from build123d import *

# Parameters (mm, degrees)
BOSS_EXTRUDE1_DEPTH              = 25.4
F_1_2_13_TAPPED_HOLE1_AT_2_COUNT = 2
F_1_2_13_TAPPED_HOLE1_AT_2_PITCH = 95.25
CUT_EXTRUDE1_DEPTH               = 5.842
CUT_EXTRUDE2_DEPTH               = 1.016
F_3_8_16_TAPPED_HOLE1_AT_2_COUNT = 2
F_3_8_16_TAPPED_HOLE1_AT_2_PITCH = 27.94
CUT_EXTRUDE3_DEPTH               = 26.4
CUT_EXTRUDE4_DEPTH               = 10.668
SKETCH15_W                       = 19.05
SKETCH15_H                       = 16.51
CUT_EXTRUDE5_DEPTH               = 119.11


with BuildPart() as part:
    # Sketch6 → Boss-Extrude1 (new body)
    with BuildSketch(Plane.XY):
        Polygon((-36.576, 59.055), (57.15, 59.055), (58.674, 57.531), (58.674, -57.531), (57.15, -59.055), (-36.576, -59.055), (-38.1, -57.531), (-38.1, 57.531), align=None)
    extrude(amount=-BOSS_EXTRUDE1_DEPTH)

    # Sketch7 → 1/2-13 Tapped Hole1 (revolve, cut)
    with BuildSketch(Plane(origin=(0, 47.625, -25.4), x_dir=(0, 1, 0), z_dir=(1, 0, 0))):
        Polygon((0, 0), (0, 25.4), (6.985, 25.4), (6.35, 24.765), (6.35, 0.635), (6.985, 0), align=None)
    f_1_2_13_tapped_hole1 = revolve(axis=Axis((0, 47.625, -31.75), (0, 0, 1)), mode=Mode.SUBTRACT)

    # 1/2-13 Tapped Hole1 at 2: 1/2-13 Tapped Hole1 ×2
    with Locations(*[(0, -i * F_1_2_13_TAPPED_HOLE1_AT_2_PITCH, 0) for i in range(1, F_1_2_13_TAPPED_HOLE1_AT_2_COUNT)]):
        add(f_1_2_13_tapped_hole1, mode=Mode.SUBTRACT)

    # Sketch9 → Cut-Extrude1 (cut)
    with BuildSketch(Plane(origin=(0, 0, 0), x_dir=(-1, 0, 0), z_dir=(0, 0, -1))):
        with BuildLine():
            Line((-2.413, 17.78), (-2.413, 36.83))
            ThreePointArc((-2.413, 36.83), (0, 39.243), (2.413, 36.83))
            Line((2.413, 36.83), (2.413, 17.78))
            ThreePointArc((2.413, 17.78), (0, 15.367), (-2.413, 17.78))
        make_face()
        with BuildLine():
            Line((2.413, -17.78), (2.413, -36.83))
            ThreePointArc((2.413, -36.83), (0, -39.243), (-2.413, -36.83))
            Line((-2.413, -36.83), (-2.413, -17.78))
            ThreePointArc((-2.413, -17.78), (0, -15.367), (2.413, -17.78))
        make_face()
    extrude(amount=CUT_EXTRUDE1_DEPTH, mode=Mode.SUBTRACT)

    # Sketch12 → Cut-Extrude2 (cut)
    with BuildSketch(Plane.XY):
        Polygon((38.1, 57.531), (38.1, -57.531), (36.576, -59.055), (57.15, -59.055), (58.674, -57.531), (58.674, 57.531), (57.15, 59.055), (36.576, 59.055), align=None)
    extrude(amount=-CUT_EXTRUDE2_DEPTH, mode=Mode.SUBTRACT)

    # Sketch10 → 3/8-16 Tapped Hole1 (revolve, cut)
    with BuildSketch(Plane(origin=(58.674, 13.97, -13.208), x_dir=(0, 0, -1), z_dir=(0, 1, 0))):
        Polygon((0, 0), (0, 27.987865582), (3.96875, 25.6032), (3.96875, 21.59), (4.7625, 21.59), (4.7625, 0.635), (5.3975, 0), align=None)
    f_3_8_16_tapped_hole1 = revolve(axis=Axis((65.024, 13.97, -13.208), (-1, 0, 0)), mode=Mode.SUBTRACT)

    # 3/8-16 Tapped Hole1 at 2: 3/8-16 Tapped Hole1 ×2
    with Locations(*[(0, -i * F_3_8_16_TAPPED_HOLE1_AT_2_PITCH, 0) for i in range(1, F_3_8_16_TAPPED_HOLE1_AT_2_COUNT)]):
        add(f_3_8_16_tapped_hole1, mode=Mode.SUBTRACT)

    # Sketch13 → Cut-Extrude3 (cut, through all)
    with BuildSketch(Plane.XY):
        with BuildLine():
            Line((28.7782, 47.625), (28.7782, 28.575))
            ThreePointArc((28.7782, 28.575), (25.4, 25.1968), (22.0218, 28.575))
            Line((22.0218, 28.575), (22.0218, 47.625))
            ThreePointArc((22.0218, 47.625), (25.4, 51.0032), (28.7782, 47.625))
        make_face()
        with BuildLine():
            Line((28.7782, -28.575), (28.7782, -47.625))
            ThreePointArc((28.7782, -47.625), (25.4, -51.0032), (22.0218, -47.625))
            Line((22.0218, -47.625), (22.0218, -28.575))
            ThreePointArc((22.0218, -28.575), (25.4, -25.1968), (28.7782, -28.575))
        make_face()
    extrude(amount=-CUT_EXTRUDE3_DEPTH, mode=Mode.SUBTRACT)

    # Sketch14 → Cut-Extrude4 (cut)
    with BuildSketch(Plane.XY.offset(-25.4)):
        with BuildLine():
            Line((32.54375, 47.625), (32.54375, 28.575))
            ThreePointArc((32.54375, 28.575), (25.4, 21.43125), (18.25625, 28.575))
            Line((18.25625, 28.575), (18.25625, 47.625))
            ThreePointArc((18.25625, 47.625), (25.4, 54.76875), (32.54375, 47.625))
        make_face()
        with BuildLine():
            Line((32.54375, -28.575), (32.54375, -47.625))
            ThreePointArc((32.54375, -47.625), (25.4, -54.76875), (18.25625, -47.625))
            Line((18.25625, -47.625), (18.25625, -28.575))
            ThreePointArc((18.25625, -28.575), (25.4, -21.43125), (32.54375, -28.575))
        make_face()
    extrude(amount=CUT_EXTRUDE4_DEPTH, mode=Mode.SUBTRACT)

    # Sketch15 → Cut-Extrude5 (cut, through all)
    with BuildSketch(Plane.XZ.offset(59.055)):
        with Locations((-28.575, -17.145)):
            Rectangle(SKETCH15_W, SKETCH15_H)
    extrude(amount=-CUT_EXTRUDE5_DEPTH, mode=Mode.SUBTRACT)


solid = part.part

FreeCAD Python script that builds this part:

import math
import FreeCAD as App
import Part
import Sketcher

V = App.Vector
Q = App.Units.Quantity


def add_polygon(sketch, points):
    """Adds a closed chain of lines whose ends are joined by coincident constraints."""
    first, n = sketch.GeometryCount, len(points)
    for a, b in zip(points, points[1:] + points[:1]):
        sketch.addGeometry(Part.LineSegment(App.Vector(*a, 0), App.Vector(*b, 0)), False)
    for i in range(n):
        sketch.addConstraint(Sketcher.Constraint("Coincident", first + i, 2, first + (i + 1) % n, 1))

doc = App.newDocument("Part")
body = doc.addObject("PartDesign::Body", "Body")

# Sketch on XY plane
sketch1 = body.newObject("Sketcher::SketchObject", "Sketch")
sketch1.AttachmentSupport = (doc.getObject("XY_Plane"), [""])
sketch1.MapMode = "FlatFace"
add_polygon(sketch1, [(57.15, 59.055), (-36.576, 59.055), (-38.1, 57.531), (-38.1, -57.531), (-36.576, -59.055), (57.15, -59.055), (58.674, -57.531), (58.674, 57.531)])  # lines 0-7
sketch1.addConstraint([
    Sketcher.Constraint("Horizontal", 0),
    Sketcher.Constraint("Vertical", 2),
    Sketcher.Constraint("Horizontal", 4),
    Sketcher.Constraint("Vertical", 6),
    Sketcher.Constraint("Symmetric", 0, 2, 3, 2, -1),
    Sketcher.Constraint("Perpendicular", 1, 3),
    Sketcher.Constraint("Perpendicular", 3, 5),
    Sketcher.Constraint("Perpendicular", 5, 7),
    Sketcher.Constraint("Horizontal", 2, 2, 5, 2),
    Sketcher.Constraint("Horizontal", 1, 2, 6, 2),
    Sketcher.Constraint("Vertical", 4, 2, 7, 2),
    Sketcher.Constraint("DistanceX", 0, 2, 0, 1, Q("3.69 in")),
    Sketcher.Constraint("DistanceY", 2, 2, 2, 1, Q("4.53 in")),
    Sketcher.Constraint("DistanceX", 1, 2, -1, 1, Q("1.5 in")),
    Sketcher.Constraint("DistanceX", 0, 2, -1, 1, Q("1.44 in")),
])
pad1 = body.newObject("PartDesign::Pad", "Pad")
pad1.Profile = sketch1
pad1.Length = Q("1 in")
pad1.Reversed = True

# Sketch on YZ plane
sketch2 = body.newObject("Sketcher::SketchObject", "Sketch001")
sketch2.AttachmentSupport = (doc.getObject("YZ_Plane"), [""])
sketch2.MapMode = "FlatFace"
add_polygon(sketch2, [(47.625, 0), (47.625, -25.4), (54.61, -25.4), (53.975, -24.765), (53.975, -0.635), (54.61, 0)])  # lines 0-5
sketch2.addGeometry(Part.LineSegment(V(47.625, -25.4, 0), V(47.625, 0, 0)), True)  # axis
sketch2.addConstraint([
    Sketcher.Constraint("Vertical", 0),
    Sketcher.Constraint("Horizontal", 1),
    Sketcher.Constraint("Vertical", 3),
    Sketcher.Constraint("Horizontal", 5),
    Sketcher.Constraint("Vertical", 6),
    Sketcher.Constraint("Coincident", 6, 1, 0, 2),
    Sketcher.Constraint("PointOnObject", 4, 2, -1),
    Sketcher.Constraint("PointOnObject", 6, 2, -1),
    Sketcher.Constraint("Perpendicular", 2, 4),
    Sketcher.Constraint("Vertical", 1, 2, 4, 2),
    Sketcher.Constraint("Equal", 2, 4),
    Sketcher.Constraint("DistanceY", 0, 2, 0, 1, Q("1 in")),
    Sketcher.Constraint("DistanceY", 3, 1, 3, 2, Q("0.95 in")),
    Sketcher.Constraint("DistanceX", 1, 1, 1, 2, Q("0.275 in")),
    Sketcher.Constraint("DistanceX", -1, 1, 1, 2, Q("2.15 in")),
])
groove = body.newObject("PartDesign::Groove", "Groove")
groove.Profile = sketch2
groove.ReferenceAxis = (sketch2, ["Axis0"])
groove.Angle = 360
doc.recompute()

linearpattern = body.newObject("PartDesign::LinearPattern", "LinearPattern")
linearpattern.Originals = [groove]
linearpattern.Direction = (doc.getObject("Y_Axis"), [""])
linearpattern.Mode = "offset"
linearpattern.Offset = Q("3.75 in")
linearpattern.Occurrences = 2
linearpattern.Reversed = True
body.Tip = linearpattern

# Sketch on XY plane
sketch3 = body.newObject("Sketcher::SketchObject", "Sketch002")
sketch3.AttachmentSupport = (doc.getObject("XY_Plane"), [""])
sketch3.MapMode = "FlatFace"
sketch3.addGeometry([
    Part.LineSegment(V(2.413, 36.83, 0), V(2.413, 17.78, 0)),  # 0
    Part.ArcOfCircle(Part.Circle(V(0, 17.78, 0), V(0, 0, 1), 2.413), math.radians(180), math.radians(360)),  # 1
    Part.LineSegment(V(-2.413, 17.78, 0), V(-2.413, 36.83, 0)),  # 2
    Part.ArcOfCircle(Part.Circle(V(0, 36.83, 0), V(0, 0, 1), 2.413), math.radians(0), math.radians(180)),  # 3
    Part.LineSegment(V(-2.413, -36.83, 0), V(-2.413, -17.78, 0)),  # 4
    Part.ArcOfCircle(Part.Circle(V(0, -17.78, 0), V(0, 0, 1), 2.413), math.radians(0), math.radians(180)),  # 5
    Part.LineSegment(V(2.413, -17.78, 0), V(2.413, -36.83, 0)),  # 6
    Part.ArcOfCircle(Part.Circle(V(0, -36.83, 0), V(0, 0, 1), 2.413), math.radians(180), math.radians(360)),  # 7
], False)
sketch3.addConstraint([
    Sketcher.Constraint("Tangent", 0, 2, 1, 2),
    Sketcher.Constraint("Tangent", 1, 1, 2, 1),
    Sketcher.Constraint("Tangent", 2, 2, 3, 2),
    Sketcher.Constraint("Tangent", 3, 1, 0, 1),
    Sketcher.Constraint("Tangent", 4, 2, 5, 2),
    Sketcher.Constraint("Tangent", 5, 1, 6, 1),
    Sketcher.Constraint("Tangent", 6, 2, 7, 2),
    Sketcher.Constraint("Tangent", 7, 1, 4, 1),
    Sketcher.Constraint("Vertical", 0),
    Sketcher.Constraint("Vertical", 2),
    Sketcher.Constraint("Vertical", 4),
    Sketcher.Constraint("Vertical", 6),
    Sketcher.Constraint("Equal", 3, 5),
    Sketcher.Constraint("Symmetric", 1, 3, 5, 3, -1, 1),
    Sketcher.Constraint("Symmetric", 3, 3, 7, 3, -1),
    Sketcher.Constraint("Radius", 1, Q("0.095 in")),
    Sketcher.Constraint("DistanceY", 0, 2, 0, 1, Q("0.75 in")),
    Sketcher.Constraint("DistanceY", -1, 1, 1, 3, Q("0.7 in")),
])
pocket1 = body.newObject("PartDesign::Pocket", "Pocket")
pocket1.Profile = sketch3
pocket1.Length = Q("0.23 in")

# Sketch on XY plane
sketch4 = body.newObject("Sketcher::SketchObject", "Sketch003")
sketch4.AttachmentSupport = (doc.getObject("XY_Plane"), [""])
sketch4.MapMode = "FlatFace"
add_polygon(sketch4, [(38.1, 57.531), (38.1, -57.531), (36.576, -59.055), (57.15, -59.055), (58.674, -57.531), (58.674, 57.531), (57.15, 59.055), (36.576, 59.055)])  # lines 0-7
sketch4.addConstraint([
    Sketcher.Constraint("Vertical", 0),
    Sketcher.Constraint("Horizontal", 2),
    Sketcher.Constraint("Vertical", 4),
    Sketcher.Constraint("Horizontal", 6),
    Sketcher.Constraint("Symmetric", 2, 2, 5, 2, -1),
    Sketcher.Constraint("Parallel", 1, 3),
    Sketcher.Constraint("Perpendicular", 3, 5),
    Sketcher.Constraint("Parallel", 5, 7),
    Sketcher.Constraint("Horizontal", 0, 2, 3, 2),
    Sketcher.Constraint("Horizontal", 4, 2, 7, 2),
    Sketcher.Constraint("Equal", 3, 5),
    Sketcher.Constraint("DistanceX", 2, 1, 2, 2, Q("0.81 in")),
    Sketcher.Constraint("DistanceY", 0, 2, 0, 1, Q("4.53 in")),
    Sketcher.Constraint("DistanceX", -1, 1, 0, 2, Q("1.5 in")),
    Sketcher.Constraint("DistanceX", -1, 1, 1, 2, Q("1.44 in")),
])
pocket2 = body.newObject("PartDesign::Pocket", "Pocket001")
pocket2.Profile = sketch4
pocket2.Length = Q("0.04 in")

# Sketch on XZ plane
sketch5 = body.newObject("Sketcher::SketchObject", "Sketch004")
sketch5.AttachmentSupport = (doc.getObject("XZ_Plane"), [""])
sketch5.MapMode = "FlatFace"
sketch5.AttachmentOffset = App.Placement(V(0, 0, -0.55 * 25.4), App.Rotation())
add_polygon(sketch5, [(30.686134, -13.208), (58.674, -13.208), (58.674, -18.6055), (58.039, -17.9705), (37.084, -17.9705), (37.084, -17.17675), (33.0708, -17.17675)])  # lines 0-6
sketch5.addGeometry(Part.LineSegment(V(58.674, -13.208, 0), V(30.686134, -13.208, 0)), True)  # axis
sketch5.addConstraint([
    Sketcher.Constraint("Horizontal", 0),
    Sketcher.Constraint("Vertical", 1),
    Sketcher.Constraint("Horizontal", 3),
    Sketcher.Constraint("Vertical", 4),
    Sketcher.Constraint("Horizontal", 5),
    Sketcher.Constraint("Horizontal", 7),
    Sketcher.Constraint("Coincident", 7, 1, 0, 2),
    Sketcher.Constraint("Equal", 0, 7),
    Sketcher.Constraint("Angle", 2, Q("135 deg")),
    Sketcher.Constraint("Angle", 6, Q("121 deg")),
    Sketcher.Constraint("DistanceX", 3, 2, 3, 1, Q("0.825 in")),
    Sketcher.Constraint("DistanceX", 5, 2, 5, 1, Q("0.158 in")),
    Sketcher.Constraint("DistanceY", 4, 1, 4, 2, Q("0.03125 in")),
    Sketcher.Constraint("DistanceX", -1, 1, 0, 2, Q("2.31 in")),
    Sketcher.Constraint("DistanceY", 0, 2, -1, 1, Q("0.52 in")),
    Sketcher.Constraint("DistanceX", -1, 1, 3, 2, Q("1.46 in")),
    Sketcher.Constraint("DistanceY", 1, 2, 1, 1, Q("0.2125 in")),
])
groove2 = body.newObject("PartDesign::Groove", "Groove001")
groove2.Profile = sketch5
groove2.ReferenceAxis = (sketch5, ["Axis0"])
groove2.Angle = 360
doc.recompute()

linearpattern2 = body.newObject("PartDesign::LinearPattern", "LinearPattern001")
linearpattern2.Originals = [groove2]
linearpattern2.Direction = (doc.getObject("Y_Axis"), [""])
linearpattern2.Mode = "offset"
linearpattern2.Offset = Q("1.1 in")
linearpattern2.Occurrences = 2
linearpattern2.Reversed = True
body.Tip = linearpattern2

# Sketch on XY plane
sketch6 = body.newObject("Sketcher::SketchObject", "Sketch005")
sketch6.AttachmentSupport = (doc.getObject("XY_Plane"), [""])
sketch6.MapMode = "FlatFace"
sketch6.addGeometry([
    Part.LineSegment(V(28.7782, 28.575, 0), V(28.7782, 47.625, 0)),  # 0
    Part.ArcOfCircle(Part.Circle(V(25.4, 47.625, 0), V(0, 0, 1), 3.3782), math.radians(0), math.radians(180)),  # 1
    Part.LineSegment(V(22.0218, 47.625, 0), V(22.0218, 28.575, 0)),  # 2
    Part.ArcOfCircle(Part.Circle(V(25.4, 28.575, 0), V(0, 0, 1), 3.3782), math.radians(180), math.radians(360)),  # 3
    Part.LineSegment(V(28.7782, -47.625, 0), V(28.7782, -28.575, 0)),  # 4
    Part.ArcOfCircle(Part.Circle(V(25.4, -28.575, 0), V(0, 0, 1), 3.3782), math.radians(0), math.radians(180)),  # 5
    Part.LineSegment(V(22.0218, -28.575, 0), V(22.0218, -47.625, 0)),  # 6
    Part.ArcOfCircle(Part.Circle(V(25.4, -47.625, 0), V(0, 0, 1), 3.3782), math.radians(180), math.radians(360)),  # 7
], False)
sketch6.addConstraint([
    Sketcher.Constraint("Tangent", 0, 2, 1, 1),
    Sketcher.Constraint("Tangent", 1, 2, 2, 1),
    Sketcher.Constraint("Tangent", 2, 2, 3, 1),
    Sketcher.Constraint("Tangent", 3, 2, 0, 1),
    Sketcher.Constraint("Tangent", 4, 2, 5, 1),
    Sketcher.Constraint("Tangent", 5, 2, 6, 1),
    Sketcher.Constraint("Tangent", 6, 2, 7, 1),
    Sketcher.Constraint("Tangent", 7, 2, 4, 1),
    Sketcher.Constraint("Vertical", 0),
    Sketcher.Constraint("Vertical", 2),
    Sketcher.Constraint("Vertical", 4),
    Sketcher.Constraint("Vertical", 6),
    Sketcher.Constraint("Equal", 3, 5),
    Sketcher.Constraint("Symmetric", 3, 3, 5, 3, -1),
    Sketcher.Constraint("Equal", 2, 4),
    Sketcher.Constraint("DistanceX", -1, 1, 1, 3, Q("1 in")),
    Sketcher.Constraint("Radius", 1, Q("0.133 in")),
    Sketcher.Constraint("DistanceY", 5, 3, 1, 3, Q("3 in")),
    Sketcher.Constraint("DistanceY", 0, 1, 0, 2, Q("0.75 in")),
])
pocket3 = body.newObject("PartDesign::Pocket", "Pocket002")
pocket3.Profile = sketch6
pocket3.Type = "ThroughAll"

# Sketch on XY plane
sketch7 = body.newObject("Sketcher::SketchObject", "Sketch006")
sketch7.AttachmentSupport = (doc.getObject("XY_Plane"), [""])
sketch7.MapMode = "FlatFace"
sketch7.AttachmentOffset = App.Placement(V(0, 0, -1 * 25.4), App.Rotation())
sketch7.addGeometry([
    Part.LineSegment(V(32.54375, 28.575, 0), V(32.54375, 47.625, 0)),  # 0
    Part.ArcOfCircle(Part.Circle(V(25.4, 47.625, 0), V(0, 0, 1), 7.14375), math.radians(0), math.radians(180)),  # 1
    Part.LineSegment(V(18.25625, 47.625, 0), V(18.25625, 28.575, 0)),  # 2
    Part.ArcOfCircle(Part.Circle(V(25.4, 28.575, 0), V(0, 0, 1), 7.14375), math.radians(180), math.radians(360)),  # 3
    Part.LineSegment(V(32.54375, -47.625, 0), V(32.54375, -28.575, 0)),  # 4
    Part.ArcOfCircle(Part.Circle(V(25.4, -28.575, 0), V(0, 0, 1), 7.14375), math.radians(0), math.radians(180)),  # 5
    Part.LineSegment(V(18.25625, -28.575, 0), V(18.25625, -47.625, 0)),  # 6
    Part.ArcOfCircle(Part.Circle(V(25.4, -47.625, 0), V(0, 0, 1), 7.14375), math.radians(180), math.radians(360)),  # 7
], False)
sketch7.addConstraint([
    Sketcher.Constraint("Tangent", 0, 2, 1, 1),
    Sketcher.Constraint("Tangent", 1, 2, 2, 1),
    Sketcher.Constraint("Tangent", 2, 2, 3, 1),
    Sketcher.Constraint("Tangent", 3, 2, 0, 1),
    Sketcher.Constraint("Tangent", 4, 2, 5, 1),
    Sketcher.Constraint("Tangent", 5, 2, 6, 1),
    Sketcher.Constraint("Tangent", 6, 2, 7, 1),
    Sketcher.Constraint("Tangent", 7, 2, 4, 1),
    Sketcher.Constraint("Vertical", 0),
    Sketcher.Constraint("Vertical", 2),
    Sketcher.Constraint("Vertical", 4),
    Sketcher.Constraint("Vertical", 6),
    Sketcher.Constraint("Equal", 3, 5),
    Sketcher.Constraint("Symmetric", 3, 3, 5, 3, -1),
    Sketcher.Constraint("Equal", 2, 4),
    Sketcher.Constraint("DistanceX", -1, 1, 1, 3, Q("1 in")),
    Sketcher.Constraint("Radius", 1, Q("0.28125 in")),
    Sketcher.Constraint("DistanceY", 5, 3, 1, 3, Q("3 in")),
    Sketcher.Constraint("DistanceY", 0, 1, 0, 2, Q("0.75 in")),
])
pocket4 = body.newObject("PartDesign::Pocket", "Pocket003")
pocket4.Profile = sketch7
pocket4.Length = Q("0.42 in")
pocket4.Reversed = True

# Sketch on XZ plane
sketch8 = body.newObject("Sketcher::SketchObject", "Sketch007")
sketch8.AttachmentSupport = (doc.getObject("XZ_Plane"), [""])
sketch8.MapMode = "FlatFace"
sketch8.AttachmentOffset = App.Placement(V(0, 0, 2.325 * 25.4), App.Rotation())
add_polygon(sketch8, [(-38.1, -8.89), (-38.1, -25.4), (-19.05, -25.4), (-19.05, -8.89)])  # lines 0-3
sketch8.addConstraint([
    Sketcher.Constraint("Vertical", 0),
    Sketcher.Constraint("Horizontal", 1),
    Sketcher.Constraint("Vertical", 2),
    Sketcher.Constraint("Horizontal", 3),
    Sketcher.Constraint("DistanceY", 0, 2, -1, 1, Q("1 in")),
    Sketcher.Constraint("DistanceX", 1, 1, 1, 2, Q("0.75 in")),
    Sketcher.Constraint("DistanceY", 0, 2, 0, 1, Q("0.65 in")),
    Sketcher.Constraint("DistanceX", 0, 2, -1, 1, Q("1.5 in")),
])
pocket5 = body.newObject("PartDesign::Pocket", "Pocket004")
pocket5.Profile = sketch8
pocket5.Type = "ThroughAll"

doc.recompute()
